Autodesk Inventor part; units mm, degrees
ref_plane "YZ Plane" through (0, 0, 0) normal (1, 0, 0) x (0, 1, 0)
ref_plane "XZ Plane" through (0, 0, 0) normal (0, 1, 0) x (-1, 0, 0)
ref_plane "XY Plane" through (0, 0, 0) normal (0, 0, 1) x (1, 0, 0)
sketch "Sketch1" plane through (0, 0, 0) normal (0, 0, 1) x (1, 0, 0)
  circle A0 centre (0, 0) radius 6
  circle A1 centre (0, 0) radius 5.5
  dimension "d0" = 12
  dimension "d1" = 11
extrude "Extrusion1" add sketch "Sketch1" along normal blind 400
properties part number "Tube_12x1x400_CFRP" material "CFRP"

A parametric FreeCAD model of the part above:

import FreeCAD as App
import Part
import Sketcher
from FreeCAD import Vector

doc = App.newDocument("Part")
body = doc.addObject("PartDesign::Body", "Body")

sketch1 = body.newObject("Sketcher::SketchObject", "Sketch")
sketch1.AttachmentSupport = (doc.getObject("XY_Plane"), [""])
sketch1.MapMode = "FlatFace"
sketch1.addGeometry(Part.Circle(Vector(0, 0, 0), Vector(0, 0, 1), 6), False)
sketch1.addGeometry(Part.Circle(Vector(0, 0, 0), Vector(0, 0, 1), 6), False)
sketch1.addConstraint(Sketcher.Constraint("Coincident", 0, 3, -1, 1))
sketch1.addConstraint(Sketcher.Constraint("Coincident", 1, 3, -1, 1))
sketch1.addConstraint(Sketcher.Constraint("Diameter", 0, 12.0))
sketch1.addConstraint(Sketcher.Constraint("Diameter", 1, 11.0))
pad1 = body.newObject("PartDesign::Pad", "Pad")
pad1.Profile = sketch1
pad1.Length = 400

doc.recompute()
